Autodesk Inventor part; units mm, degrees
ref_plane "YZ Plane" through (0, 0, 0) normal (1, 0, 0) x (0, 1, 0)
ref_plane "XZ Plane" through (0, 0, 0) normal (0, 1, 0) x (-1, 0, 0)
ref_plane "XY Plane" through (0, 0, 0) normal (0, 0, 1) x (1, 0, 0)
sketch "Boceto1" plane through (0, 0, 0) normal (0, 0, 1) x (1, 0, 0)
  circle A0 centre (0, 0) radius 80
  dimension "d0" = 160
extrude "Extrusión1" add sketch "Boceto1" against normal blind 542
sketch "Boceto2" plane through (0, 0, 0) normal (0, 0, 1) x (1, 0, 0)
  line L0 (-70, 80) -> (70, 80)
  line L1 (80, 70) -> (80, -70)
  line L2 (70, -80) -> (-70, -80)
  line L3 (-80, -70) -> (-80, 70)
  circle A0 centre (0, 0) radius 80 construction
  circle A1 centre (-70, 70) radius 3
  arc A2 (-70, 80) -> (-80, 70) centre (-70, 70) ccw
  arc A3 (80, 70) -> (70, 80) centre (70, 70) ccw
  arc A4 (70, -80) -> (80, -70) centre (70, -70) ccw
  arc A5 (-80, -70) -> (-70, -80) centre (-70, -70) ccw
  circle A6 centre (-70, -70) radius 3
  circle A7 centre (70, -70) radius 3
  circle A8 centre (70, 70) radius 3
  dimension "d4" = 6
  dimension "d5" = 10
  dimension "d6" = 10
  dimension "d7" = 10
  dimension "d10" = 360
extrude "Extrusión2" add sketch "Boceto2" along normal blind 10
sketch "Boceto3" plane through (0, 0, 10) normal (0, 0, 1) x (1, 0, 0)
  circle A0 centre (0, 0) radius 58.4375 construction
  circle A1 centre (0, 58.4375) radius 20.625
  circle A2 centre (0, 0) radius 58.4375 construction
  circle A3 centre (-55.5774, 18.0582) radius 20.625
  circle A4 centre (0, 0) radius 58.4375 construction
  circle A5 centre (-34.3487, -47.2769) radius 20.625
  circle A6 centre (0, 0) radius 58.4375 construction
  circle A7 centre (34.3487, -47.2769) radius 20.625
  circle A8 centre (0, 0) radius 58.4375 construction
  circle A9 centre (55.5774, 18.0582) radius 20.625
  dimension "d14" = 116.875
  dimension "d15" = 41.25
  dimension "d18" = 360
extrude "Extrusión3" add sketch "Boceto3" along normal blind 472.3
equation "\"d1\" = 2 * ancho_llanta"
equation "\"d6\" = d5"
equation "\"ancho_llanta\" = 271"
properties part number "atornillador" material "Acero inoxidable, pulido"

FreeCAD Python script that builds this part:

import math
import FreeCAD as App
import Part
import Sketcher

doc = App.newDocument("Part")
body = doc.addObject("PartDesign::Body", "Body")

# Sketch on XY plane
sketch1 = body.newObject("Sketcher::SketchObject", "Sketch")
sketch1.AttachmentSupport = (doc.getObject("XY_Plane"), [""])
sketch1.MapMode = "FlatFace"
sketch1.addGeometry(Part.Circle(App.Vector(0, 0, 0), App.Vector(0, 0, 1), 80), False)
sketch1.addConstraint(Sketcher.Constraint("Coincident", 0, 3, -1, 1))
sketch1.addConstraint(Sketcher.Constraint("Diameter", 0, 160.0))
pad1 = body.newObject("PartDesign::Pad", "Pad")
pad1.Profile = sketch1
pad1.Length = 542
pad1.Reversed = True

# Sketch on XY plane
sketch2 = body.newObject("Sketcher::SketchObject", "Sketch001")
sketch2.AttachmentSupport = (doc.getObject("XY_Plane"), [""])
sketch2.MapMode = "FlatFace"
sketch2.addGeometry(Part.LineSegment(App.Vector(70, 80, 0), App.Vector(-70, 80, 0)), False)
sketch2.addGeometry(Part.ArcOfCircle(Part.Circle(App.Vector(-70, 70, 0), App.Vector(0, 0, 1), 10), math.radians(90), math.radians(180)), False)
sketch2.addGeometry(Part.LineSegment(App.Vector(-80, 70, 0), App.Vector(-80, -70, 0)), False)
sketch2.addGeometry(Part.ArcOfCircle(Part.Circle(App.Vector(-70, -70, 0), App.Vector(0, 0, 1), 10), math.radians(180), math.radians(270)), False)
sketch2.addGeometry(Part.LineSegment(App.Vector(-70, -80, 0), App.Vector(70, -80, 0)), False)
sketch2.addGeometry(Part.ArcOfCircle(Part.Circle(App.Vector(70, -70, 0), App.Vector(0, 0, 1), 10), math.radians(-90), math.radians(0)), False)
sketch2.addGeometry(Part.LineSegment(App.Vector(80, -70, 0), App.Vector(80, 70, 0)), False)
sketch2.addGeometry(Part.ArcOfCircle(Part.Circle(App.Vector(70, 70, 0), App.Vector(0, 0, 1), 10), math.radians(0), math.radians(90)), False)
sketch2.addGeometry(Part.Circle(App.Vector(-70, -70, 0), App.Vector(0, 0, 1), 3), False)
sketch2.addGeometry(Part.Circle(App.Vector(70, -70, 0), App.Vector(0, 0, 1), 3), False)
sketch2.addGeometry(Part.Circle(App.Vector(-70, 70, 0), App.Vector(0, 0, 1), 3), False)
sketch2.addGeometry(Part.Circle(App.Vector(70, 70, 0), App.Vector(0, 0, 1), 3), False)
sketch2.addConstraint(Sketcher.Constraint("Tangent", 0, 2, 1, 1))
sketch2.addConstraint(Sketcher.Constraint("Tangent", 1, 2, 2, 1))
sketch2.addConstraint(Sketcher.Constraint("Tangent", 2, 2, 3, 1))
sketch2.addConstraint(Sketcher.Constraint("Tangent", 3, 2, 4, 1))
sketch2.addConstraint(Sketcher.Constraint("Tangent", 4, 2, 5, 1))
sketch2.addConstraint(Sketcher.Constraint("Tangent", 5, 2, 6, 1))
sketch2.addConstraint(Sketcher.Constraint("Tangent", 6, 2, 7, 1))
sketch2.addConstraint(Sketcher.Constraint("Tangent", 7, 2, 0, 1))
sketch2.addConstraint(Sketcher.Constraint("Horizontal", 0))
sketch2.addConstraint(Sketcher.Constraint("Vertical", 2))
sketch2.addConstraint(Sketcher.Constraint("Horizontal", 4))
sketch2.addConstraint(Sketcher.Constraint("Vertical", 6))
sketch2.addConstraint(Sketcher.Constraint("Coincident", 8, 3, 3, 3))
sketch2.addConstraint(Sketcher.Constraint("Coincident", 9, 3, 5, 3))
sketch2.addConstraint(Sketcher.Constraint("Coincident", 10, 3, 1, 3))
sketch2.addConstraint(Sketcher.Constraint("Coincident", 11, 3, 7, 3))
sketch2.addConstraint(Sketcher.Constraint("Equal", 1, 3))
sketch2.addConstraint(Sketcher.Constraint("Equal", 3, 5))
sketch2.addConstraint(Sketcher.Constraint("Equal", 5, 7))
sketch2.addConstraint(Sketcher.Constraint("Equal", 8, 9))
sketch2.addConstraint(Sketcher.Constraint("Equal", 9, 10))
sketch2.addConstraint(Sketcher.Constraint("Equal", 10, 11))
sketch2.addConstraint(Sketcher.Constraint("Symmetric", 1, 3, 5, 3, -1, 1))
sketch2.addConstraint(Sketcher.Constraint("Equal", 4, 2))
sketch2.addConstraint(Sketcher.Constraint("Diameter", 8, 6.0))
sketch2.addConstraint(Sketcher.Constraint("Radius", 1, 10.0))
sketch2.addConstraint(Sketcher.Constraint("DistanceX", 0, 2, 0, 1, 140.0))
pad2 = body.newObject("PartDesign::Pad", "Pad001")
pad2.Profile = sketch2
pad2.Length = 10

# Sketch on XY plane
sketch3 = body.newObject("Sketcher::SketchObject", "Sketch002")
sketch3.AttachmentSupport = (doc.getObject("XY_Plane"), [""])
sketch3.MapMode = "FlatFace"
sketch3.AttachmentOffset = App.Placement(App.Vector(0, 0, 10), App.Rotation())
sketch3.addGeometry(Part.Circle(App.Vector(0, 58, 0), App.Vector(0, 0, 1), 21), False)
sketch3.addGeometry(Part.Circle(App.Vector(-56, 18, 0), App.Vector(0, 0, 1), 21), False)
sketch3.addGeometry(Part.Circle(App.Vector(-34, -47, 0), App.Vector(0, 0, 1), 21), False)
sketch3.addGeometry(Part.Circle(App.Vector(34, -47, 0), App.Vector(0, 0, 1), 21), False)
sketch3.addGeometry(Part.Circle(App.Vector(56, 18, 0), App.Vector(0, 0, 1), 21), False)
sketch3.addConstraint(Sketcher.Constraint("Equal", 0, 1))
sketch3.addConstraint(Sketcher.Constraint("Equal", 1, 2))
sketch3.addConstraint(Sketcher.Constraint("Equal", 2, 3))
sketch3.addConstraint(Sketcher.Constraint("Equal", 3, 4))
sketch3.addConstraint(Sketcher.Constraint("Symmetric", 2, 3, 3, 3, -2))
sketch3.addConstraint(Sketcher.Constraint("Symmetric", 1, 3, 4, 3, -2))
sketch3.addConstraint(Sketcher.Constraint("PointOnObject", 0, 3, -2))
sketch3.addConstraint(Sketcher.Constraint("Diameter", 0, 41.25))
sketch3.addConstraint(Sketcher.Constraint("DistanceY", 2, 3, -1, 1, 47.277))
sketch3.addConstraint(Sketcher.Constraint("DistanceY", 2, 3, 1, 3, 65.335))
sketch3.addConstraint(Sketcher.Constraint("DistanceX", 1, 3, 3, 3, 89.926))
sketch3.addConstraint(Sketcher.Constraint("DistanceY", -1, 1, 0, 3, 58.4375))
sketch3.addConstraint(Sketcher.Constraint("DistanceX", 1, 3, -1, 1, 55.5774))
pad3 = body.newObject("PartDesign::Pad", "Pad002")
pad3.Profile = sketch3
pad3.Length = 472.3

doc.recompute()
